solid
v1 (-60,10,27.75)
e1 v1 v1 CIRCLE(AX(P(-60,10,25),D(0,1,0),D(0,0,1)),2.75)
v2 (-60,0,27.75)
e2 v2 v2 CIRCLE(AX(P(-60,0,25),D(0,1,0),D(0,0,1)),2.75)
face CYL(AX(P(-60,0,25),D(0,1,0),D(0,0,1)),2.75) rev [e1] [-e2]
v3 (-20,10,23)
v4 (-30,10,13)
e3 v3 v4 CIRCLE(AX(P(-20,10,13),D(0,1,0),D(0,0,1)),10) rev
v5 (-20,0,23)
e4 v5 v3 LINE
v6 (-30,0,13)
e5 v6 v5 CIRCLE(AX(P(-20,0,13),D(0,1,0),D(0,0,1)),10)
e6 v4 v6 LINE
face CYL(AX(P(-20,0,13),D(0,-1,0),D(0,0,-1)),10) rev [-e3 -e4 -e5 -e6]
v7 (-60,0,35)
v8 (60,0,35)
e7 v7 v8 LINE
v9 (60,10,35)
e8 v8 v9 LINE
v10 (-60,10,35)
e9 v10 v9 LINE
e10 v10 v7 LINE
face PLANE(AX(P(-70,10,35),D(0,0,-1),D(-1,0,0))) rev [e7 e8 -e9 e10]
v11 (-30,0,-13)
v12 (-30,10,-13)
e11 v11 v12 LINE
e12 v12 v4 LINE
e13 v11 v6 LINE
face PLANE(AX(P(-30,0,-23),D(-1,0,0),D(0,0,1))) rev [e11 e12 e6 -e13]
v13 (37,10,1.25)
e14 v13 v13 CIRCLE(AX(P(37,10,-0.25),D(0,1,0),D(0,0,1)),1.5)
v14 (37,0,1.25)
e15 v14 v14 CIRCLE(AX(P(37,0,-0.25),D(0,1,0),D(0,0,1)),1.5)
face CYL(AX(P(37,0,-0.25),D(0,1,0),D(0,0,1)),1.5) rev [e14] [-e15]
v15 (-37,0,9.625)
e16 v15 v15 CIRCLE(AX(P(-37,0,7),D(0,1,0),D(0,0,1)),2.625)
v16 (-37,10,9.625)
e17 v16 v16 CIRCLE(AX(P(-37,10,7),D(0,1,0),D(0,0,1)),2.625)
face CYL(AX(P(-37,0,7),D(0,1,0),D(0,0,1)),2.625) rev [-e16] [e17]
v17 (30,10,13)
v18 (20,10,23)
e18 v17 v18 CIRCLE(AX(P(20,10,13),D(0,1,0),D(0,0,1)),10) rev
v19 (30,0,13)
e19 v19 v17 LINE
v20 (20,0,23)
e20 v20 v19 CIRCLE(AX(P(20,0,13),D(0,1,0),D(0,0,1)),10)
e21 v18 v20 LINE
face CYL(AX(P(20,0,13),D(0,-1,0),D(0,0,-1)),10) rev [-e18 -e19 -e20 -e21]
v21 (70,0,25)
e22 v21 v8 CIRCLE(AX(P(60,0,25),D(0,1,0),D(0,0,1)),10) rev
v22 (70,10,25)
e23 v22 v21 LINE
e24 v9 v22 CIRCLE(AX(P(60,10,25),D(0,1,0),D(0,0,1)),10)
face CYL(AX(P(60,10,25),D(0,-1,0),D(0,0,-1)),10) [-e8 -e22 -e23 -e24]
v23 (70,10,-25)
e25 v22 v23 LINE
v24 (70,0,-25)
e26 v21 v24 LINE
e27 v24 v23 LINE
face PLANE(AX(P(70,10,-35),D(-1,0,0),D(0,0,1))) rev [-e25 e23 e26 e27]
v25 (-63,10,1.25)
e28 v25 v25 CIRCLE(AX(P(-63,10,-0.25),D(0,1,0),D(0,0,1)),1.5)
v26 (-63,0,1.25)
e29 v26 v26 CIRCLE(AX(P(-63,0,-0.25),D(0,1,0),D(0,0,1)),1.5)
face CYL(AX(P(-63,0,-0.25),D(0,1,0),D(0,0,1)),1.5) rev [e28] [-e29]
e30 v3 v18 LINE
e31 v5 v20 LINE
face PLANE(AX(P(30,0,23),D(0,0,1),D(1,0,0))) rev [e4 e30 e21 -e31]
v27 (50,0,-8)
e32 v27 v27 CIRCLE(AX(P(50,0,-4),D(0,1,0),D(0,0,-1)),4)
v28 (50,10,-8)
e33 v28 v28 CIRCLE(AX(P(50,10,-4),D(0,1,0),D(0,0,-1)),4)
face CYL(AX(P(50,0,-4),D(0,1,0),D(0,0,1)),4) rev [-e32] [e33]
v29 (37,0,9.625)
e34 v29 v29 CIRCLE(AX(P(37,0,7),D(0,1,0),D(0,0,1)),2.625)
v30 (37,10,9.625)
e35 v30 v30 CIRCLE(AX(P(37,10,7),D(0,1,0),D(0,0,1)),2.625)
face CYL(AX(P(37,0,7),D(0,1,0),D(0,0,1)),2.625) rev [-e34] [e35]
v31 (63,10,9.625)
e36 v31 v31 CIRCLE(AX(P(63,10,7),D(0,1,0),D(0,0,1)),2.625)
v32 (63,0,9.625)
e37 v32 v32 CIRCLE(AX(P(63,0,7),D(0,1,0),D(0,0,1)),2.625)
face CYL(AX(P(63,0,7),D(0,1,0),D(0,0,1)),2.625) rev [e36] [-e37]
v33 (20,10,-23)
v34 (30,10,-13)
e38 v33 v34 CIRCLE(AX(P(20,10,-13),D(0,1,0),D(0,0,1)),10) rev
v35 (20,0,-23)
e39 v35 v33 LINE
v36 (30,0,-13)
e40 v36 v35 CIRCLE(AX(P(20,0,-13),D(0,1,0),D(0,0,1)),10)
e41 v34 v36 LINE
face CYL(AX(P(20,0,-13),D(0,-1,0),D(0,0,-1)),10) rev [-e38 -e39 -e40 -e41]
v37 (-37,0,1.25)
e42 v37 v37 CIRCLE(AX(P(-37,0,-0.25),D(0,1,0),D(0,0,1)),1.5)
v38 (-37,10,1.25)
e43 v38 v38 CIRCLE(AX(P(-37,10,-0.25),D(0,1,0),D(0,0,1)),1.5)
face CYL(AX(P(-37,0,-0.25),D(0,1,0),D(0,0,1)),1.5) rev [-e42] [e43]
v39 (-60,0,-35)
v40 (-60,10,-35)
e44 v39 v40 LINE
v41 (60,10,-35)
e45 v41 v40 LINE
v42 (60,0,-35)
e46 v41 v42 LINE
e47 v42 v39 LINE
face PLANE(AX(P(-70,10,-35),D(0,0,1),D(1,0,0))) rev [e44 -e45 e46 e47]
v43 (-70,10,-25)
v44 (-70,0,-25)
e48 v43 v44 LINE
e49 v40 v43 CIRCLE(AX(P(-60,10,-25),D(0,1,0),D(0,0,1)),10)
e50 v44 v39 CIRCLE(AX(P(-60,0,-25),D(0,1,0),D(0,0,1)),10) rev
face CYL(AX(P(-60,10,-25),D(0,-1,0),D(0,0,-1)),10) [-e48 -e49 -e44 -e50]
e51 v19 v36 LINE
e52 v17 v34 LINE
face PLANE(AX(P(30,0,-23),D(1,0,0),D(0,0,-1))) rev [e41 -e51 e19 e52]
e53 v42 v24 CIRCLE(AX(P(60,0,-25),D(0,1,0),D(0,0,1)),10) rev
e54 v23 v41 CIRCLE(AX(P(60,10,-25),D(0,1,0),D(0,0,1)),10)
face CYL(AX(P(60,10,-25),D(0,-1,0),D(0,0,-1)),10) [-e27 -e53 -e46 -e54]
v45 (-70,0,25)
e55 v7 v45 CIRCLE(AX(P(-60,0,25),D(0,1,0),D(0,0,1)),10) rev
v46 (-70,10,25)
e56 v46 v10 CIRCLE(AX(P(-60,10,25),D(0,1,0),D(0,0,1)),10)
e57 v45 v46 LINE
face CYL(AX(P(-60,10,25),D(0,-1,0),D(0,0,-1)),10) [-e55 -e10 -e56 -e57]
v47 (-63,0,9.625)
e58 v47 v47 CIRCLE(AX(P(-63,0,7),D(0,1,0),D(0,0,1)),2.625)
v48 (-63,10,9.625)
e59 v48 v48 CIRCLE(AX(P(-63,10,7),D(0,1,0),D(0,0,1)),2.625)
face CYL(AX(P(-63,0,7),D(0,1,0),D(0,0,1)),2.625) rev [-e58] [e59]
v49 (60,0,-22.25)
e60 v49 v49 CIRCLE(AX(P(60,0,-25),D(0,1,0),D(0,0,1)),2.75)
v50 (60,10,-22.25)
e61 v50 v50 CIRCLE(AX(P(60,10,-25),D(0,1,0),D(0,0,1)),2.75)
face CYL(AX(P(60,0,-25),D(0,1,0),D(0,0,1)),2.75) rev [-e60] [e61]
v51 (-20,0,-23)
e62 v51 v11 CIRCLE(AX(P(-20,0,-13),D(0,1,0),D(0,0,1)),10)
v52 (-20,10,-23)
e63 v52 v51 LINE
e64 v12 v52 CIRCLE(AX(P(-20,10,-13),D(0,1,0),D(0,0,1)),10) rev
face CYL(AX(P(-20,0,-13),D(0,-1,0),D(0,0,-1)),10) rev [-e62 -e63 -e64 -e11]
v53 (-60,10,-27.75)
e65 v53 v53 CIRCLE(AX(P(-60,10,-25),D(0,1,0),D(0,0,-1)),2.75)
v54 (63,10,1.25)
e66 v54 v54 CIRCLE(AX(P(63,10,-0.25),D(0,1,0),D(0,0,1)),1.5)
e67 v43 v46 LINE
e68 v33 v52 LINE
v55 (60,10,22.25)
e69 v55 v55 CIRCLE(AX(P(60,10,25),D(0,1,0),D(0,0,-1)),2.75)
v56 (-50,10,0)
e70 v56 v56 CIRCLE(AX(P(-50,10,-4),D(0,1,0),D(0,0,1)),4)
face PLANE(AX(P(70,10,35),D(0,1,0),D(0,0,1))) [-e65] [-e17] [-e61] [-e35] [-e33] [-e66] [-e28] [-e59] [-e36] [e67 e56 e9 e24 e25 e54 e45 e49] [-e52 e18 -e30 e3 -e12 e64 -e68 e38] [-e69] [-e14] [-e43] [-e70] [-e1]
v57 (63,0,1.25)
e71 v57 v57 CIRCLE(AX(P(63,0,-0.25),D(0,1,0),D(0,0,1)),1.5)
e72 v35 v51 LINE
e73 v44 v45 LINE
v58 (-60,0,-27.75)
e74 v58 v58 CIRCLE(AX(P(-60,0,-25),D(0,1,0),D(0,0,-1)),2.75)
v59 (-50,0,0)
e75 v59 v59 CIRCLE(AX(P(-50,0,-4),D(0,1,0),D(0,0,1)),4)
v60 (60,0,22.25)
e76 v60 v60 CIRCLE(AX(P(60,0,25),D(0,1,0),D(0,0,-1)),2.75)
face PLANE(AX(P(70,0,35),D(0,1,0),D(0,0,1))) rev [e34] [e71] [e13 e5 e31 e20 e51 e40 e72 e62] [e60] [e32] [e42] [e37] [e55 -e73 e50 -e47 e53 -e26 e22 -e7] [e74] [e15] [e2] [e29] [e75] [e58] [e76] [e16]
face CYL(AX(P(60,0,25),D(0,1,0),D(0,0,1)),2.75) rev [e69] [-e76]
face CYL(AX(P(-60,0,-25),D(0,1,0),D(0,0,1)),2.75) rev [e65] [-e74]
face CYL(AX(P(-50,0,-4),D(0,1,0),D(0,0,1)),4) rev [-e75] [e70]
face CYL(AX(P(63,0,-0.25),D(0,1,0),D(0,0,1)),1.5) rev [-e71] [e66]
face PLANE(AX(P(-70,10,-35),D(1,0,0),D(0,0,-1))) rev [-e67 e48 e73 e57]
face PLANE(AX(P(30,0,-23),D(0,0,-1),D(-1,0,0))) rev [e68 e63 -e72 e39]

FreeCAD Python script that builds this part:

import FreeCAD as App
import Part
import Sketcher


def edges_at(feature, points):
    """Names of the edges that pass closest to the given points."""
    edges = feature.Shape.Edges
    near = lambda p: min(range(len(edges)), key=lambda i: edges[i].distToShape(Part.Vertex(*p))[0])
    return sorted({f"Edge{near(p) + 1}" for p in points})

doc = App.newDocument("Part")
params = doc.addObject("Spreadsheet::Sheet", "Params")
for row, (alias, value) in enumerate([
    ("sketch1_width", "140 mm"),
    ("sketch1_height", "70 mm"),
    ("pad1_length", "10 mm"),
    ("fillet_radius", "10 mm"),
    ("sketch2_diameter", "5.5 mm"),
    ("sketch3_diameter", "8 mm"),
    ("sketch4_diameter", "3 mm"),
    ("sketch4_diameter2", "5.25 mm"),
    ("sketch5_width", "60 mm"),
    ("sketch5_height", "46 mm"),
    ("fillet2_radius", "10 mm"),
], start=1):
    params.set(f"A{row}", alias)
    params.set(f"B{row}", "=" + value)
    params.setAlias(f"B{row}", alias)

body = doc.addObject("PartDesign::Body", "Body")

sketch1 = body.newObject("Sketcher::SketchObject", "Sketch")
sketch1.AttachmentSupport = (doc.getObject("XZ_Plane"), [""])
sketch1.MapMode = "FlatFace"
sketch1.addGeometry([
    Part.LineSegment(App.Vector(-70, -35, 0), App.Vector(-70, 35, 0)),
    Part.LineSegment(App.Vector(-70, 35, 0), App.Vector(70, 35, 0)),
    Part.LineSegment(App.Vector(70, 35, 0), App.Vector(70, -35, 0)),
    Part.LineSegment(App.Vector(70, -35, 0), App.Vector(-70, -35, 0)),
], False)
sketch1.addConstraint([
    Sketcher.Constraint("Coincident", 0, 2, 1, 1),
    Sketcher.Constraint("Coincident", 1, 2, 2, 1),
    Sketcher.Constraint("Coincident", 2, 2, 3, 1),
    Sketcher.Constraint("Coincident", 3, 2, 0, 1),
    Sketcher.Constraint("Vertical", 0),
    Sketcher.Constraint("Horizontal", 1),
    Sketcher.Constraint("Vertical", 2),
    Sketcher.Constraint("Horizontal", 3),
    Sketcher.Constraint("Symmetric", 0, 2, 2, 2, -1, 1),
    Sketcher.Constraint("DistanceX", 1, 1, 1, 2, 140.0),
    Sketcher.Constraint("DistanceY", 0, 1, 0, 2, 70.0),
])
sketch1.setExpression("Constraints[9]", "Params.sketch1_width")
sketch1.setExpression("Constraints[10]", "Params.sketch1_height")
pad1 = body.newObject("PartDesign::Pad", "Pad")
pad1.Profile = sketch1
pad1.setExpression("Length", "Params.pad1_length")
pad1.Reversed = True
doc.recompute()

fillet = body.newObject("PartDesign::Fillet", "Fillet")
fillet.Base = (pad1, edges_at(pad1, [
    (70, 5, 35),
    (-70, 5, 35),
    (-70, 5, -35),
    (70, 5, -35),
]))
fillet.setExpression("Radius", "Params.fillet_radius")

sketch2 = body.newObject("Sketcher::SketchObject", "Sketch001")
sketch2.AttachmentSupport = (doc.getObject("XZ_Plane"), [""])
sketch2.MapMode = "FlatFace"
sketch2.AttachmentOffset = App.Placement(App.Vector(0, 0, -10), App.Rotation())
sketch2.addGeometry([
    Part.Circle(App.Vector(-60, 25, 0), App.Vector(0, 0, 1), 2.8),
    Part.Circle(App.Vector(-60, -25, 0), App.Vector(0, 0, 1), 2.8),
    Part.Circle(App.Vector(60, 25, 0), App.Vector(0, 0, 1), 2.8),
    Part.Circle(App.Vector(60, -25, 0), App.Vector(0, 0, 1), 2.8),
], False)
sketch2.addConstraint([
    Sketcher.Constraint("Equal", 0, 1),
    Sketcher.Constraint("Equal", 1, 2),
    Sketcher.Constraint("Equal", 2, 3),
    Sketcher.Constraint("Symmetric", 1, 3, 2, 3, -1, 1),
    Sketcher.Constraint("Symmetric", 0, 3, 3, 3, -1, 1),
    Sketcher.Constraint("Symmetric", 0, 3, 2, 3, -2),
    Sketcher.Constraint("Diameter", 0, 5.5),
    Sketcher.Constraint("DistanceX", 0, 3, -1, 1, 60.0),
    Sketcher.Constraint("DistanceY", -1, 1, 0, 3, 25.0),
])
sketch2.setExpression("Constraints[6]", "Params.sketch2_diameter")
pocket1 = body.newObject("PartDesign::Pocket", "Pocket")
pocket1.Profile = sketch2
pocket1.Type = "ThroughAll"
pocket1.Reversed = True

sketch3 = body.newObject("Sketcher::SketchObject", "Sketch002")
sketch3.AttachmentSupport = (doc.getObject("XZ_Plane"), [""])
sketch3.MapMode = "FlatFace"
sketch3.AttachmentOffset = App.Placement(App.Vector(0, 0, -10), App.Rotation())
sketch3.addGeometry([
    Part.Circle(App.Vector(-50, -4, 0), App.Vector(0, 0, 1), 4),
    Part.Circle(App.Vector(50, -4, 0), App.Vector(0, 0, 1), 4),
], False)
sketch3.addConstraint([
    Sketcher.Constraint("Equal", 0, 1),
    Sketcher.Constraint("Symmetric", 0, 3, 1, 3, -2),
    Sketcher.Constraint("Diameter", 0, 8.0),
    Sketcher.Constraint("DistanceX", 0, 3, -1, 1, 50.0),
    Sketcher.Constraint("DistanceY", 0, 3, -1, 1, 4.0),
])
sketch3.setExpression("Constraints[2]", "Params.sketch3_diameter")
pocket2 = body.newObject("PartDesign::Pocket", "Pocket001")
pocket2.Profile = sketch3
pocket2.Type = "ThroughAll"
pocket2.Reversed = True

sketch4 = body.newObject("Sketcher::SketchObject", "Sketch003")
sketch4.AttachmentSupport = (doc.getObject("XZ_Plane"), [""])
sketch4.MapMode = "FlatFace"
sketch4.AttachmentOffset = App.Placement(App.Vector(0, 0, -10), App.Rotation())
sketch4.addGeometry([
    Part.Circle(App.Vector(-63, 7, 0), App.Vector(0, 0, 1), 2.6),
    Part.Circle(App.Vector(-37, 7, 0), App.Vector(0, 0, 1), 2.6),
    Part.Circle(App.Vector(37, 7, 0), App.Vector(0, 0, 1), 2.6),
    Part.Circle(App.Vector(63, 7, 0), App.Vector(0, 0, 1), 2.6),
    Part.Circle(App.Vector(-63, -0.2, 0), App.Vector(0, 0, 1), 1.5),
    Part.Circle(App.Vector(-37, -0.2, 0), App.Vector(0, 0, 1), 1.5),
    Part.Circle(App.Vector(37, -0.2, 0), App.Vector(0, 0, 1), 1.5),
    Part.Circle(App.Vector(63, -0.2, 0), App.Vector(0, 0, 1), 1.5),
], False)
sketch4.addConstraint([
    Sketcher.Constraint("Equal", 0, 1),
    Sketcher.Constraint("Equal", 1, 2),
    Sketcher.Constraint("Equal", 2, 3),
    Sketcher.Constraint("Equal", 4, 5),
    Sketcher.Constraint("Equal", 5, 6),
    Sketcher.Constraint("Equal", 6, 7),
    Sketcher.Constraint("Symmetric", 1, 3, 2, 3, -2),
    Sketcher.Constraint("Symmetric", 0, 3, 3, 3, -2),
    Sketcher.Constraint("Symmetric", 5, 3, 6, 3, -2),
    Sketcher.Constraint("Symmetric", 4, 3, 7, 3, -2),
    Sketcher.Constraint("Horizontal", 0, 3, 1, 3),
    Sketcher.Constraint("Horizontal", 4, 3, 5, 3),
    Sketcher.Constraint("Vertical", 0, 3, 4, 3),
    Sketcher.Constraint("Vertical", 1, 3, 5, 3),
    Sketcher.Constraint("Diameter", 4, 3.0),
    Sketcher.Constraint("Diameter", 0, 5.25),
    Sketcher.Constraint("DistanceX", 0, 3, -1, 1, 63.0),
    Sketcher.Constraint("DistanceY", -1, 1, 0, 3, 7.0),
    Sketcher.Constraint("DistanceX", 1, 3, -1, 1, 37.0),
    Sketcher.Constraint("DistanceY", 4, 3, -1, 1, 0.25),
])
sketch4.setExpression("Constraints[14]", "Params.sketch4_diameter")
sketch4.setExpression("Constraints[15]", "Params.sketch4_diameter2")
pocket3 = body.newObject("PartDesign::Pocket", "Pocket002")
pocket3.Profile = sketch4
pocket3.Type = "ThroughAll"
pocket3.Reversed = True

sketch5 = body.newObject("Sketcher::SketchObject", "Sketch004")
sketch5.AttachmentSupport = (doc.getObject("XZ_Plane"), [""])
sketch5.MapMode = "FlatFace"
sketch5.AttachmentOffset = App.Placement(App.Vector(0, 0, -10), App.Rotation())
sketch5.addGeometry([
    Part.LineSegment(App.Vector(-30, -23, 0), App.Vector(-30, 23, 0)),
    Part.LineSegment(App.Vector(-30, 23, 0), App.Vector(30, 23, 0)),
    Part.LineSegment(App.Vector(30, 23, 0), App.Vector(30, -23, 0)),
    Part.LineSegment(App.Vector(30, -23, 0), App.Vector(-30, -23, 0)),
], False)
sketch5.addConstraint([
    Sketcher.Constraint("Coincident", 0, 2, 1, 1),
    Sketcher.Constraint("Coincident", 1, 2, 2, 1),
    Sketcher.Constraint("Coincident", 2, 2, 3, 1),
    Sketcher.Constraint("Coincident", 3, 2, 0, 1),
    Sketcher.Constraint("Vertical", 0),
    Sketcher.Constraint("Horizontal", 1),
    Sketcher.Constraint("Vertical", 2),
    Sketcher.Constraint("Horizontal", 3),
    Sketcher.Constraint("Symmetric", 0, 2, 2, 2, -1, 1),
    Sketcher.Constraint("DistanceX", 1, 1, 1, 2, 60.0),
    Sketcher.Constraint("DistanceY", 0, 1, 0, 2, 46.0),
])
sketch5.setExpression("Constraints[9]", "Params.sketch5_width")
sketch5.setExpression("Constraints[10]", "Params.sketch5_height")
pocket4 = body.newObject("PartDesign::Pocket", "Pocket003")
pocket4.Profile = sketch5
pocket4.Type = "ThroughAll"
pocket4.Reversed = True
doc.recompute()

fillet2 = body.newObject("PartDesign::Fillet", "Fillet001")
fillet2.Base = (pocket4, edges_at(pocket4, [
    (-30, 5, 23),
    (-30, 5, -23),
    (30, 5, -23),
    (30, 5, 23),
]))
fillet2.setExpression("Radius", "Params.fillet2_radius")

doc.recompute()
